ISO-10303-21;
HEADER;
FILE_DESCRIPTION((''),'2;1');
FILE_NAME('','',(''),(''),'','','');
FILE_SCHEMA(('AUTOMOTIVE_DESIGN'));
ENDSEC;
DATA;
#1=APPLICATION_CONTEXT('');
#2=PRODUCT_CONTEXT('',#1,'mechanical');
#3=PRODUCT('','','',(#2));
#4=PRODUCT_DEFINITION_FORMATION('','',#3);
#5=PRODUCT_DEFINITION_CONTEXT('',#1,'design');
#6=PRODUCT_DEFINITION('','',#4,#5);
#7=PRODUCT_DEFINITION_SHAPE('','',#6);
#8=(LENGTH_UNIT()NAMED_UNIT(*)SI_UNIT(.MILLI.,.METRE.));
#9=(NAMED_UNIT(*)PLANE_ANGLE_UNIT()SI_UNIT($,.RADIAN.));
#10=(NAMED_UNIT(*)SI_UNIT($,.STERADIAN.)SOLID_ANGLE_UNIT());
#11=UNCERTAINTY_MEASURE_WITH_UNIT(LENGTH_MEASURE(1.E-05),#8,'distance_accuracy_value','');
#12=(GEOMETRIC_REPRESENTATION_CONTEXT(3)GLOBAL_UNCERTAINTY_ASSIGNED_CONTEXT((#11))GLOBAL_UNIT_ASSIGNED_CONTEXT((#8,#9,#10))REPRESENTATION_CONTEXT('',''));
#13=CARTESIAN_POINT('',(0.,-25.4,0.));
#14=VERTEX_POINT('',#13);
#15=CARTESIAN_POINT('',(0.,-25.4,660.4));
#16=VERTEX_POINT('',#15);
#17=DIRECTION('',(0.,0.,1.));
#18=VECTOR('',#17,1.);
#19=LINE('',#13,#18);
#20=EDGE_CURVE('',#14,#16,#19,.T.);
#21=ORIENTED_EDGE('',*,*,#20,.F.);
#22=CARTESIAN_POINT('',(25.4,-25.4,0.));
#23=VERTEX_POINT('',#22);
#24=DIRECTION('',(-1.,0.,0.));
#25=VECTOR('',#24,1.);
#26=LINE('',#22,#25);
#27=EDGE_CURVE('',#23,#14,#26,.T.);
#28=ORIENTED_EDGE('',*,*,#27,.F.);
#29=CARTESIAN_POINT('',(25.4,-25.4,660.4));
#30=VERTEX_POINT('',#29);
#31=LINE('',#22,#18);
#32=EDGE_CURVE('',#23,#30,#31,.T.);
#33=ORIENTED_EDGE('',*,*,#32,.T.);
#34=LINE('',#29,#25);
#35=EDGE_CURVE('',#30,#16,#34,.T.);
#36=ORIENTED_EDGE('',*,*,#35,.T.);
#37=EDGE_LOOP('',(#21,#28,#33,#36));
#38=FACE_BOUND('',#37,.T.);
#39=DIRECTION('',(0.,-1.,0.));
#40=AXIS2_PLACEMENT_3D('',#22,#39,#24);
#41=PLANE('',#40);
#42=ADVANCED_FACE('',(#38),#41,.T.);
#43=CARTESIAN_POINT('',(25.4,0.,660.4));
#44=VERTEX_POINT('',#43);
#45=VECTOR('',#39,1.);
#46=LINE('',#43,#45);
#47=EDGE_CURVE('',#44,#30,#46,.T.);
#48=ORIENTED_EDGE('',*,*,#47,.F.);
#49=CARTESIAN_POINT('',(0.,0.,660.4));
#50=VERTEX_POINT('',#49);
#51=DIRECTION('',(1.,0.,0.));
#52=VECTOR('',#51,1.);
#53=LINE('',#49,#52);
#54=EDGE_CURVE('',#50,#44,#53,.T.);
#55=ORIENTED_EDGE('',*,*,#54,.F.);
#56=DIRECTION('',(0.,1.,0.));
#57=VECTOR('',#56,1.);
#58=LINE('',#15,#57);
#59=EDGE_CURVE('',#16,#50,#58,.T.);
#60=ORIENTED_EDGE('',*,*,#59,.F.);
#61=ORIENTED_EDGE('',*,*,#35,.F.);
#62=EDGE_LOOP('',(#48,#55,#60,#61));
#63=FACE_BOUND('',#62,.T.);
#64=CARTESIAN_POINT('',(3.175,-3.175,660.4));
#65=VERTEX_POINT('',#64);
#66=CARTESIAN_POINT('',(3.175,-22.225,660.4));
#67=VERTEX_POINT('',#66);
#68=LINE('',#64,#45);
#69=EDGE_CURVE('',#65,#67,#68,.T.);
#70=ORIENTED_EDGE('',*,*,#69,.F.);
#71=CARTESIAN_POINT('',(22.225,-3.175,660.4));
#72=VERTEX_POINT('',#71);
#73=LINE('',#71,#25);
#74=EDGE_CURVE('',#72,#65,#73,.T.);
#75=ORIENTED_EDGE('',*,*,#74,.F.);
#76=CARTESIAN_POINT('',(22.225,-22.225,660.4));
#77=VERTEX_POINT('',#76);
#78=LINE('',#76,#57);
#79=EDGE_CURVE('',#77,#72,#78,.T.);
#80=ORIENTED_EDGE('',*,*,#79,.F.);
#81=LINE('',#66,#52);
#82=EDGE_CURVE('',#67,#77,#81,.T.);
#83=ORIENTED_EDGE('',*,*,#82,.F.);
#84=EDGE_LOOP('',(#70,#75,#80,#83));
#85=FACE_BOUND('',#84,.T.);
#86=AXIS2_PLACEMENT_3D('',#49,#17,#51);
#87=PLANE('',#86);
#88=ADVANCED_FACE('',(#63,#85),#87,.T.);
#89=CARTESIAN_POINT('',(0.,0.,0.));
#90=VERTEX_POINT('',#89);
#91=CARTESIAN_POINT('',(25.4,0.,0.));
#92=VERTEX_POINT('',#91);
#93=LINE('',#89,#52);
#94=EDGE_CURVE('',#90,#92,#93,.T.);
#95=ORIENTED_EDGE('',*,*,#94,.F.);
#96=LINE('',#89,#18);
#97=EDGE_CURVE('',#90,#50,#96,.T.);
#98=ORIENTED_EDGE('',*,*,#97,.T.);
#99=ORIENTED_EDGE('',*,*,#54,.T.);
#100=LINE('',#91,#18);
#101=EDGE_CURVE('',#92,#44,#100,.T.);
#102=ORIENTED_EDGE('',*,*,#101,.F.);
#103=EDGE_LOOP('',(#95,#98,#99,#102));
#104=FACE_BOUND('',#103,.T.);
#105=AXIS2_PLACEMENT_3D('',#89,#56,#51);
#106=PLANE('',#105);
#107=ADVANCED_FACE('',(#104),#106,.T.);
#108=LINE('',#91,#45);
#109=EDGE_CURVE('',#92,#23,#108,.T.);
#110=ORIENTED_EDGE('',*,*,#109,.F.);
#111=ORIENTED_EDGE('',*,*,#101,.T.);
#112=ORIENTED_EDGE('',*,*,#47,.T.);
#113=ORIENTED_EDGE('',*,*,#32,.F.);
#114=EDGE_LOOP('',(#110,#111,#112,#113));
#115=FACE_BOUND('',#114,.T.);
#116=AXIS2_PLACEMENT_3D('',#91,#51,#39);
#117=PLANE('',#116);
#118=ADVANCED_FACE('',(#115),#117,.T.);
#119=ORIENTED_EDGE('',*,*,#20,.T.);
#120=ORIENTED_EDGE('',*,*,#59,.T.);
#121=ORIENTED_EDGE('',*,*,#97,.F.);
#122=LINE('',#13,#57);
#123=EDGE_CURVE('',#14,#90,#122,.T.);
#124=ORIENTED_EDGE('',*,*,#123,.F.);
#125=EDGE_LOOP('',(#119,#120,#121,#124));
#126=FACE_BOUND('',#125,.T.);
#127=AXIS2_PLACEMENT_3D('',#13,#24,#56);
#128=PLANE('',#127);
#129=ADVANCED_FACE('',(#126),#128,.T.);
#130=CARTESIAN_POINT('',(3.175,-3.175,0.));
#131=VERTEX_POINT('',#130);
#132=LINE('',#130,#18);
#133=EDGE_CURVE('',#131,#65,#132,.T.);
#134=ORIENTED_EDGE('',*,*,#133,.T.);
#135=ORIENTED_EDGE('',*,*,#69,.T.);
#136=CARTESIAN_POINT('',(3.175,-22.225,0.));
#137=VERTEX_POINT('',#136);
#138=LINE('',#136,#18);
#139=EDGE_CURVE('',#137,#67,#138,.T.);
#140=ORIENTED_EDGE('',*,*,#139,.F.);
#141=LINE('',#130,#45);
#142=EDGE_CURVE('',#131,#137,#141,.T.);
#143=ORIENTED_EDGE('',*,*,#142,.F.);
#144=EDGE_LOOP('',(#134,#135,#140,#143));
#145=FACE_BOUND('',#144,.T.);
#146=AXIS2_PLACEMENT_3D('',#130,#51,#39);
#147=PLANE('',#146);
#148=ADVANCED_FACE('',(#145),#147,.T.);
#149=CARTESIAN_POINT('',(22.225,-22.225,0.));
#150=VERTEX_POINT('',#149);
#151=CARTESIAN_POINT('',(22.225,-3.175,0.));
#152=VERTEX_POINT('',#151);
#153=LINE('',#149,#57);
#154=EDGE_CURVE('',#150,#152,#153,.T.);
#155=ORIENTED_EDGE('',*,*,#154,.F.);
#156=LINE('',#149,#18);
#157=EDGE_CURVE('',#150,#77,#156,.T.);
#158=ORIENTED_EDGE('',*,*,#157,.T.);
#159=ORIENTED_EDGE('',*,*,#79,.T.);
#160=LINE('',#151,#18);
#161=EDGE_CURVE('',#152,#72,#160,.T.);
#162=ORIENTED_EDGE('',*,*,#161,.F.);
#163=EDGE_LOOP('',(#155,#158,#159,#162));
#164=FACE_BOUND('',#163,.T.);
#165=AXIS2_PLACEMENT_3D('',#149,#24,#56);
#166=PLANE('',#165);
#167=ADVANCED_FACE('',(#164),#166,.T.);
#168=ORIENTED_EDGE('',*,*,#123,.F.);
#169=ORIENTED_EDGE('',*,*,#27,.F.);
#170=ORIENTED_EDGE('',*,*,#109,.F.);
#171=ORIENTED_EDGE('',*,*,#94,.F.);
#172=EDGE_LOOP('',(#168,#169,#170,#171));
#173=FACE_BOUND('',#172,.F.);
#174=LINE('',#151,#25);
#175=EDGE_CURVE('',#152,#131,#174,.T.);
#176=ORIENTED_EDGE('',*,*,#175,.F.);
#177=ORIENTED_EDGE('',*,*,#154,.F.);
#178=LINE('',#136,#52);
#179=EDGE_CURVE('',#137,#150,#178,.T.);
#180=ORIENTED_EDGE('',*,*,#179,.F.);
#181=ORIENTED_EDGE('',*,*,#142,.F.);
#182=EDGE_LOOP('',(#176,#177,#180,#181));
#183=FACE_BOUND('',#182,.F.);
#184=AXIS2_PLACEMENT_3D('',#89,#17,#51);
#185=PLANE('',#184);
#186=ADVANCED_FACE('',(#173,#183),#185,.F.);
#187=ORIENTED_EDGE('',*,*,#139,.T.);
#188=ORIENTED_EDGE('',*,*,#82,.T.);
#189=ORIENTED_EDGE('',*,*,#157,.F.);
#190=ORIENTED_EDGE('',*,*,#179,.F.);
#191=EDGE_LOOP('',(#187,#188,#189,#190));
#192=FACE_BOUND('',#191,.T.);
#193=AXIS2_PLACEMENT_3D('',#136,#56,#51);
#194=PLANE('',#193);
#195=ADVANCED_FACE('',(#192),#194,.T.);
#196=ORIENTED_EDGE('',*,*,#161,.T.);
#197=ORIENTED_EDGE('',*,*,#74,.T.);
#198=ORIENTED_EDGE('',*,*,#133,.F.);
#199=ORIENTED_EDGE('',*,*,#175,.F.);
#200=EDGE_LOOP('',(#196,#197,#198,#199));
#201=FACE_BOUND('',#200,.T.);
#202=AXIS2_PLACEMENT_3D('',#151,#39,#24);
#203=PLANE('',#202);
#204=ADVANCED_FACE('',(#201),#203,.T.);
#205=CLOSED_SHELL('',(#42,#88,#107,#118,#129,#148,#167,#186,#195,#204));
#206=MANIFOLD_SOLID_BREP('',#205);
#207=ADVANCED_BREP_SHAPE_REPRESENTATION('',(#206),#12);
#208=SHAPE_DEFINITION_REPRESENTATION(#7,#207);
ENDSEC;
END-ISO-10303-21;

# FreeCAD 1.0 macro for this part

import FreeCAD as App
import Part
import Sketcher

V = App.Vector
Q = App.Units.Quantity

doc = App.newDocument("Part")
body = doc.addObject("PartDesign::Body", "Body")

# Sketch on XY plane
sketch1 = doc.addObject("Sketcher::SketchObject", "Sketch")
body.addObject(sketch1)
sketch1.AttachmentSupport = (doc.XY_Plane, [""])
sketch1.MapMode = "FlatFace"
sketch1.addGeometry(Part.LineSegment(V(25, 0, 0), V(0, 0, 0)), False)
sketch1.addGeometry(Part.LineSegment(V(0, 0, 0), V(0, -25, 0)), False)
sketch1.addGeometry(Part.LineSegment(V(0, -25, 0), V(25, -25, 0)), False)
sketch1.addGeometry(Part.LineSegment(V(25, -25, 0), V(25, 0, 0)), False)
sketch1.addGeometry(Part.LineSegment(V(3, -3, 0), V(22, -3, 0)), False)
sketch1.addGeometry(Part.LineSegment(V(22, -3, 0), V(22, -22, 0)), False)
sketch1.addGeometry(Part.LineSegment(V(22, -22, 0), V(3, -22, 0)), False)
sketch1.addGeometry(Part.LineSegment(V(3, -22, 0), V(3, -3, 0)), False)
sketch1.addConstraint(Sketcher.Constraint("Coincident", 0, 2, 1, 1))
sketch1.addConstraint(Sketcher.Constraint("Coincident", 1, 2, 2, 1))
sketch1.addConstraint(Sketcher.Constraint("Coincident", 2, 2, 3, 1))
sketch1.addConstraint(Sketcher.Constraint("Coincident", 3, 2, 0, 1))
sketch1.addConstraint(Sketcher.Constraint("Coincident", 4, 2, 5, 1))
sketch1.addConstraint(Sketcher.Constraint("Coincident", 5, 2, 6, 1))
sketch1.addConstraint(Sketcher.Constraint("Coincident", 6, 2, 7, 1))
sketch1.addConstraint(Sketcher.Constraint("Coincident", 7, 2, 4, 1))
sketch1.addConstraint(Sketcher.Constraint("Horizontal", 0))
sketch1.addConstraint(Sketcher.Constraint("Vertical", 1))
sketch1.addConstraint(Sketcher.Constraint("Horizontal", 2))
sketch1.addConstraint(Sketcher.Constraint("Vertical", 3))
sketch1.addConstraint(Sketcher.Constraint("Horizontal", 4))
sketch1.addConstraint(Sketcher.Constraint("Vertical", 5))
sketch1.addConstraint(Sketcher.Constraint("Horizontal", 6))
sketch1.addConstraint(Sketcher.Constraint("Vertical", 7))
sketch1.addConstraint(Sketcher.Constraint("Coincident", 0, 2, -1, 1))
sketch1.addConstraint(Sketcher.Constraint("Equal", 2, 1))
sketch1.addConstraint(Sketcher.Constraint("Equal", 6, 5))
sketch1.addConstraint(Sketcher.Constraint("DistanceX", 0, 2, 0, 1, Q("1 in")))
sketch1.addConstraint(Sketcher.Constraint("DistanceY", 4, 2, -1, 1, Q("0.125 in")))
sketch1.addConstraint(Sketcher.Constraint("DistanceX", -1, 1, 6, 2, Q("0.125 in")))
sketch1.addConstraint(Sketcher.Constraint("DistanceX", 4, 2, 3, 2, Q("0.125 in")))
pad1 = doc.addObject("PartDesign::Pad", "Pad")
body.addObject(pad1)
pad1.Profile = sketch1
pad1.Length = Q("26 in")

doc.recompute()
